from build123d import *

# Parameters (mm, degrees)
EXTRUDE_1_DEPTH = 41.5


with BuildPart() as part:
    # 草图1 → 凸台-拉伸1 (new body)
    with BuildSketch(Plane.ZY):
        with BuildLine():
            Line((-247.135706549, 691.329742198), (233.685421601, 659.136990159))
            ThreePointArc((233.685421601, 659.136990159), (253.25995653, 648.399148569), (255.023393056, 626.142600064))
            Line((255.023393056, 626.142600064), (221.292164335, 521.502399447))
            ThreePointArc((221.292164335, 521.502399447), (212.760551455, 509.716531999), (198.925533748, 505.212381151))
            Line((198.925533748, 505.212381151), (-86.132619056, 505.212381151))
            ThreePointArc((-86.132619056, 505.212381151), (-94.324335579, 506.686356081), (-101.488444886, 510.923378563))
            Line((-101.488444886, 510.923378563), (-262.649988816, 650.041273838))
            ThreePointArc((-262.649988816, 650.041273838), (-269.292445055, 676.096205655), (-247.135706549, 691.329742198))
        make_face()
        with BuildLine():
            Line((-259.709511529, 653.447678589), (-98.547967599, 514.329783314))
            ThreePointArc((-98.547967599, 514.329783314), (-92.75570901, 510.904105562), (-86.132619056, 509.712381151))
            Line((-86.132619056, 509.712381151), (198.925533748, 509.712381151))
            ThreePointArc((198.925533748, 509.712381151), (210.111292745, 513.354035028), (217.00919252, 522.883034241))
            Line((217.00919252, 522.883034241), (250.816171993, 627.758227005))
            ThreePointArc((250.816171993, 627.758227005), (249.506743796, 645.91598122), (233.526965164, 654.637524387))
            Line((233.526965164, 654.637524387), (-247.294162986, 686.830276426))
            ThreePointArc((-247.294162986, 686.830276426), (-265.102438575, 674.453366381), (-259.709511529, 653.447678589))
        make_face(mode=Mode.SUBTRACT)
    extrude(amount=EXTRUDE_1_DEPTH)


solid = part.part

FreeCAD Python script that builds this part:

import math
import FreeCAD as App
import Part
import Sketcher

V = App.Vector
Q = App.Units.Quantity

doc = App.newDocument("Part")
params = doc.addObject("Spreadsheet::Sheet", "Params")
for row, (alias, value) in enumerate([
    ("sketch1_radius", "19 mm"),
    ("sketch1_radius2", "19 mm"),
    ("sketch1_radius3", "19 mm"),
    ("sketch1_radius4", "19 mm"),
    ("sketch1_radius5", "23.5 mm"),
    ("pad1_length", "41.5 mm"),
], start=1):
    params.set(f"A{row}", alias)
    params.set(f"B{row}", "=" + value)
    params.setAlias(f"B{row}", alias)

body = doc.addObject("PartDesign::Body", "Body")

# Sketch on YZ plane
sketch1 = doc.addObject("Sketcher::SketchObject", "Sketch")
body.addObject(sketch1)
sketch1.AttachmentSupport = (doc.YZ_Plane, [""])
sketch1.MapMode = "FlatFace"
sketch1.addGeometry([
    Part.LineSegment(V(659.13699, 233.685422, 0), V(691.329742, -247.135707, 0)),  # 0
    Part.ArcOfCircle(Part.Circle(V(667.830276, -247.294163, 0), V(0, 0, 1), 23.5), math.radians(-139.198578), math.radians(0.386338)),  # 1
    Part.LineSegment(V(650.041274, -262.649989, 0), V(510.923379, -101.488445, 0)),  # 2
    Part.ArcOfCircle(Part.Circle(V(528.712381, -86.132619, 0), V(0, 0, 1), 23.5), math.radians(-180), math.radians(-139.198578)),  # 3
    Part.LineSegment(V(505.212381, -86.132619, 0), V(505.212381, 198.925534, 0)),  # 4
    Part.ArcOfCircle(Part.Circle(V(528.712381, 198.925534, 0), V(0, 0, 1), 23.5), math.radians(107.866955), math.radians(180)),  # 5
    Part.LineSegment(V(521.502399, 221.292164, 0), V(626.1426, 255.023393, 0)),  # 6
    Part.ArcOfCircle(Part.Circle(V(635.637524, 233.526965, 0), V(0, 0, 1), 23.5), math.radians(0.386338), math.radians(113.830941)),  # 7
    Part.ArcOfCircle(Part.Circle(V(667.830276, -247.294163, 0), V(0, 0, 1), 19), math.radians(-139.198578), math.radians(0)),  # 8
    Part.LineSegment(V(686.830276, -247.294163, 0), V(654.637524, 233.526965, 0)),  # 9
    Part.ArcOfCircle(Part.Circle(V(635.637524, 233.526965, 0), V(0, 0, 1), 19), math.radians(0), math.radians(114.500417)),  # 10
    Part.LineSegment(V(627.758227, 250.816172, 0), V(522.883034, 217.009193, 0)),  # 11
    Part.ArcOfCircle(Part.Circle(V(528.712381, 198.925534, 0), V(0, 0, 1), 19), math.radians(107.866955), math.radians(180)),  # 12
    Part.LineSegment(V(509.712381, 198.925534, 0), V(509.712381, -86.132619, 0)),  # 13
    Part.ArcOfCircle(Part.Circle(V(528.712381, -86.132619, 0), V(0, 0, 1), 19), math.radians(-180), math.radians(-139.198578)),  # 14
    Part.LineSegment(V(514.329783, -98.547968, 0), V(653.447679, -259.709512, 0)),  # 15
], False)
sketch1.addConstraint([
    Sketcher.Constraint("Coincident", 0, 2, 1, 2),
    Sketcher.Constraint("Coincident", 1, 1, 2, 1),
    Sketcher.Constraint("Coincident", 2, 2, 3, 2),
    Sketcher.Constraint("Coincident", 3, 1, 4, 1),
    Sketcher.Constraint("Coincident", 4, 2, 5, 2),
    Sketcher.Constraint("Coincident", 5, 1, 6, 1),
    Sketcher.Constraint("Coincident", 6, 2, 7, 2),
    Sketcher.Constraint("Coincident", 7, 1, 0, 1),
    Sketcher.Constraint("Coincident", 8, 2, 9, 1),
    Sketcher.Constraint("Coincident", 9, 2, 10, 1),
    Sketcher.Constraint("Coincident", 10, 2, 11, 1),
    Sketcher.Constraint("Coincident", 11, 2, 12, 1),
    Sketcher.Constraint("Coincident", 12, 2, 13, 1),
    Sketcher.Constraint("Coincident", 13, 2, 14, 1),
    Sketcher.Constraint("Coincident", 14, 2, 15, 1),
    Sketcher.Constraint("Coincident", 15, 2, 8, 1),
    Sketcher.Constraint("Vertical", 4),
    Sketcher.Constraint("Vertical", 13),
    Sketcher.Constraint("Coincident", 8, 3, 1, 3),
    Sketcher.Constraint("Coincident", 10, 3, 7, 3),
    Sketcher.Constraint("Coincident", 12, 3, 5, 3),
    Sketcher.Constraint("Coincident", 14, 3, 3, 3),
    Sketcher.Constraint("Radius", 8, Q("19 mm")),
    Sketcher.Constraint("Radius", 10, Q("19 mm")),
    Sketcher.Constraint("Radius", 12, Q("19 mm")),
    Sketcher.Constraint("Radius", 14, Q("19 mm")),
    Sketcher.Constraint("Radius", 1, Q("23.5 mm")),
    Sketcher.Constraint("Radius", 3, Q("23.5 mm")),
    Sketcher.Constraint("Radius", 7, Q("23.5 mm")),
    Sketcher.Constraint("DistanceX", -1, 1, 5, 1, Q("521.502399 mm")),
    Sketcher.Constraint("DistanceX", -1, 1, 6, 2, Q("626.1426 mm")),
    Sketcher.Constraint("DistanceY", 5, 1, 7, 3, Q("12.234801 mm")),
    Sketcher.Constraint("DistanceY", 11, 2, 6, 2, Q("38.014201 mm")),
    Sketcher.Constraint("Distance", 2, Q("212.900991 mm")),
    Sketcher.Constraint("Distance", 15, Q("212.900991 mm")),
    Sketcher.Constraint("DistanceY", 4, 1, 4, 2, Q("285.058153 mm")),
    Sketcher.Constraint("DistanceY", 13, 2, 13, 1, Q("285.058153 mm")),
    Sketcher.Constraint("DistanceX", -1, 1, 3, 3, Q("528.712381 mm")),
    Sketcher.Constraint("DistanceY", 3, 3, -1, 1, Q("86.132619 mm")),
    Sketcher.Constraint("DistanceY", 1, 1, -1, 1, Q("262.649989 mm")),
    Sketcher.Constraint("DistanceX", -1, 1, 2, 2, Q("510.923379 mm")),
    Sketcher.Constraint("DistanceY", 3, 1, -1, 1, Q("86.132619 mm")),
    Sketcher.Constraint("DistanceX", -1, 1, 7, 1, Q("659.13699 mm")),
    Sketcher.Constraint("DistanceY", -1, 1, 7, 1, Q("233.685422 mm")),
    Sketcher.Constraint("DistanceY", -1, 1, 10, 2, Q("250.816172 mm")),
    Sketcher.Constraint("DistanceY", 13, 2, -1, 1, Q("86.132619 mm")),
    Sketcher.Constraint("DistanceX", -1, 1, 15, 2, Q("653.447679 mm")),
    Sketcher.Constraint("DistanceY", 1, 3, 7, 3, Q("480.821128 mm")),
    Sketcher.Constraint("DistanceX", 3, 3, 0, 2, Q("162.617361 mm")),
    Sketcher.Constraint("DistanceY", 0, 2, 5, 3, Q("446.06124 mm")),
    Sketcher.Constraint("DistanceY", 5, 3, 9, 2, Q("34.601431 mm")),
    Sketcher.Constraint("DistanceY", 15, 2, 8, 2, Q("12.415349 mm")),
])
sketch1.setExpression("Constraints[22]", "Params.sketch1_radius")
sketch1.setExpression("Constraints[23]", "Params.sketch1_radius2")
sketch1.setExpression("Constraints[24]", "Params.sketch1_radius3")
sketch1.setExpression("Constraints[25]", "Params.sketch1_radius4")
sketch1.setExpression("Constraints[26]", "Params.sketch1_radius5")
pad1 = doc.addObject("PartDesign::Pad", "Pad")
body.addObject(pad1)
pad1.Profile = sketch1
pad1.setExpression("Length", "Params.pad1_length")
pad1.Reversed = True

doc.recompute()
